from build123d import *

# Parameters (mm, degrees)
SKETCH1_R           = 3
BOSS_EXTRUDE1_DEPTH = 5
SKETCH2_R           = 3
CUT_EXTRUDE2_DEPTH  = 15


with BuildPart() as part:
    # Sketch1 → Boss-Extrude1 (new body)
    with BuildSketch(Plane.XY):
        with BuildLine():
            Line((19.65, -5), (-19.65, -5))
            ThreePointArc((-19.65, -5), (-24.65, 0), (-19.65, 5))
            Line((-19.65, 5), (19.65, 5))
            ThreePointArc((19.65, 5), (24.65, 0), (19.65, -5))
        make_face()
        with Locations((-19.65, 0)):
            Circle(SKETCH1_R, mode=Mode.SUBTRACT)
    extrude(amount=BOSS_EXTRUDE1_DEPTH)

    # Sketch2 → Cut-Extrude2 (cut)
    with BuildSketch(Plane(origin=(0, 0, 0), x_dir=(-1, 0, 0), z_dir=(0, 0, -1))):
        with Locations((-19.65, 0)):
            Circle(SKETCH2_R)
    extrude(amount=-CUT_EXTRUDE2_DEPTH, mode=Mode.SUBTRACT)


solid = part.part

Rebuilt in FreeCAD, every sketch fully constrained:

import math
import FreeCAD as App
import Part
import Sketcher

doc = App.newDocument("Part")
body = doc.addObject("PartDesign::Body", "Body")

sketch1 = body.newObject("Sketcher::SketchObject", "Sketch")
sketch1.AttachmentSupport = (doc.getObject("XY_Plane"), [""])
sketch1.MapMode = "FlatFace"
sketch1.addGeometry([
    Part.LineSegment(App.Vector(-19.6, -5, 0), App.Vector(19.6, -5, 0)),
    Part.ArcOfCircle(Part.Circle(App.Vector(19.6, 0, 0), App.Vector(0, 0, 1), 5), math.radians(-90), math.radians(90)),
    Part.LineSegment(App.Vector(19.6, 5, 0), App.Vector(-19.6, 5, 0)),
    Part.ArcOfCircle(Part.Circle(App.Vector(-19.6, 0, 0), App.Vector(0, 0, 1), 5), math.radians(90), math.radians(270)),
    Part.Circle(App.Vector(-19.6, 0, 0), App.Vector(0, 0, 1), 3),
], False)
sketch1.addConstraint([
    Sketcher.Constraint("Tangent", 0, 2, 1, 1),
    Sketcher.Constraint("Tangent", 1, 2, 2, 1),
    Sketcher.Constraint("Tangent", 2, 2, 3, 1),
    Sketcher.Constraint("Tangent", 3, 2, 0, 1),
    Sketcher.Constraint("Horizontal", 0),
    Sketcher.Constraint("Horizontal", 2),
    Sketcher.Constraint("Coincident", 4, 3, 3, 3),
    Sketcher.Constraint("Symmetric", 1, 3, 3, 3, -1, 1),
    Sketcher.Constraint("Diameter", 4, 6.0),
    Sketcher.Constraint("Radius", 1, 5.0),
    Sketcher.Constraint("DistanceX", 0, 1, 0, 2, 39.3),
])
pad1 = body.newObject("PartDesign::Pad", "Pad")
pad1.Profile = sketch1
pad1.Length = 5

sketch2 = body.newObject("Sketcher::SketchObject", "Sketch001")
sketch2.AttachmentSupport = (doc.getObject("XY_Plane"), [""])
sketch2.MapMode = "FlatFace"
sketch2.addGeometry(Part.Circle(App.Vector(19.6, 0, 0), App.Vector(0, 0, 1), 3), False)
sketch2.addConstraint([
    Sketcher.Constraint("PointOnObject", 0, 3, -1),
    Sketcher.Constraint("Diameter", 0, 6.0),
    Sketcher.Constraint("DistanceX", -1, 1, 0, 3, 19.65),
])
pocket1 = body.newObject("PartDesign::Pocket", "Pocket")
pocket1.Profile = sketch2
pocket1.Length = 15
pocket1.Reversed = True

doc.recompute()
